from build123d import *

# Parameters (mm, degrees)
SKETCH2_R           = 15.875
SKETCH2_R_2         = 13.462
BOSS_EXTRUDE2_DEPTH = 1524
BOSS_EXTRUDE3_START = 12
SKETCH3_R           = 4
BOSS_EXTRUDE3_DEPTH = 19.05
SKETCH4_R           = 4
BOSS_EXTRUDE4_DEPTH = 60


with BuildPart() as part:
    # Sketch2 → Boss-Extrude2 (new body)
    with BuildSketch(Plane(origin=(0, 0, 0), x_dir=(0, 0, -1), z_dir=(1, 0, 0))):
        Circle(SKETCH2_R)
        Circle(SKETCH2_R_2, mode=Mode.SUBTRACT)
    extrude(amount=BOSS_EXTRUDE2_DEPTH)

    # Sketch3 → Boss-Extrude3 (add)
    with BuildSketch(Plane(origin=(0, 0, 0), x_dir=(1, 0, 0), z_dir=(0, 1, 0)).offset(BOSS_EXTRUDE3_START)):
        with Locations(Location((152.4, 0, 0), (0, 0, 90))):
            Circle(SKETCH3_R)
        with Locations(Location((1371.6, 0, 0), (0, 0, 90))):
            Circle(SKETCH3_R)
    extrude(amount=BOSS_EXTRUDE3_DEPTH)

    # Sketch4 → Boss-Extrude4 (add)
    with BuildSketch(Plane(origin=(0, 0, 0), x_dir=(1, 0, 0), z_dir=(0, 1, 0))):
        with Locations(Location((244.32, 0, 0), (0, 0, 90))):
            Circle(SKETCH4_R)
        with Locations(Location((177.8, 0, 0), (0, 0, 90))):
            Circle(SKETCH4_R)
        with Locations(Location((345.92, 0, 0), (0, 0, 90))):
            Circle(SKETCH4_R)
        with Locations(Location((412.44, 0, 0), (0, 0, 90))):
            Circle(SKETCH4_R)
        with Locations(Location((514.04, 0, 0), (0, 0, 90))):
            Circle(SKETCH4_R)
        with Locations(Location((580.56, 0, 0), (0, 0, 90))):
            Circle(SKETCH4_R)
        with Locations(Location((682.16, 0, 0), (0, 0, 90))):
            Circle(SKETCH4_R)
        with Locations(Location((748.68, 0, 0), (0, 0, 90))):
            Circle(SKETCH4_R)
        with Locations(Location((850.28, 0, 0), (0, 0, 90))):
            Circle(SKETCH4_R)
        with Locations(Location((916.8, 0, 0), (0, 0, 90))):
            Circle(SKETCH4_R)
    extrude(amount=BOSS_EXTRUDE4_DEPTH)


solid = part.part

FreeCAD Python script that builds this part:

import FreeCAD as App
import Part
import Sketcher

V = App.Vector
Q = App.Units.Quantity

doc = App.newDocument("Part")
params = doc.addObject("Spreadsheet::Sheet", "Params")
for row, (alias, value) in enumerate([
    ("sketch1_diameter", "1.25 in"),
    ("sketch1_diameter2", "1.06 in"),
    ("pad1_length", "60 in"),
    ("pad2_length", "0.75 in"),
    ("pad3_length", "60 mm"),
], start=1):
    params.set(f"A{row}", alias)
    params.set(f"B{row}", "=" + value)
    params.setAlias(f"B{row}", alias)

body = doc.addObject("PartDesign::Body", "Body")

sketch1 = body.newObject("Sketcher::SketchObject", "Sketch")
sketch1.AttachmentSupport = (doc.getObject("YZ_Plane"), [""])
sketch1.MapMode = "FlatFace"
sketch1.addGeometry([
    Part.Circle(V(0, 0, 0), V(0, 0, 1), 16),
    Part.Circle(V(0, 0, 0), V(0, 0, 1), 13),
], False)
sketch1.addConstraint([
    Sketcher.Constraint("Coincident", 0, 3, -1, 1),
    Sketcher.Constraint("Coincident", 1, 3, -1, 1),
    Sketcher.Constraint("Diameter", 0, Q("1.25 in")),
    Sketcher.Constraint("Diameter", 1, Q("1.06 in")),
])
sketch1.setExpression("Constraints[2]", "Params.sketch1_diameter")
sketch1.setExpression("Constraints[3]", "Params.sketch1_diameter2")
pad1 = body.newObject("PartDesign::Pad", "Pad")
pad1.Profile = sketch1
pad1.setExpression("Length", "Params.pad1_length")

sketch2 = body.newObject("Sketcher::SketchObject", "Sketch001")
sketch2.AttachmentSupport = (doc.getObject("XZ_Plane"), [""])
sketch2.MapMode = "FlatFace"
sketch2.AttachmentOffset = App.Placement(V(0, 0, -12), App.Rotation())
sketch2.addGeometry([
    Part.Circle(V(152.4, 0, 0), V(0, 0, 1), 4),
    Part.Circle(V(1371.6, 0, 0), V(0, 0, 1), 4),
], False)
sketch2.addConstraint([
    Sketcher.Constraint("Equal", 0, 1),
    Sketcher.Constraint("PointOnObject", 0, 3, -1),
    Sketcher.Constraint("PointOnObject", 1, 3, -1),
    Sketcher.Constraint("DistanceX", -1, 1, 0, 3, Q("6 in")),
    Sketcher.Constraint("DistanceX", -1, 1, 1, 3, Q("54 in")),
    Sketcher.Constraint("Diameter", 0, Q("8 mm")),
])
pad2 = body.newObject("PartDesign::Pad", "Pad001")
pad2.Profile = sketch2
pad2.setExpression("Length", "Params.pad2_length")
pad2.Reversed = True

sketch3 = body.newObject("Sketcher::SketchObject", "Sketch002")
sketch3.AttachmentSupport = (doc.getObject("XZ_Plane"), [""])
sketch3.MapMode = "FlatFace"
sketch3.addGeometry([
    Part.Circle(V(244.3, 0, 0), V(0, 0, 1), 4),
    Part.Circle(V(177.8, 0, 0), V(0, 0, 1), 4),
    Part.Circle(V(345.9, 0, 0), V(0, 0, 1), 4),
    Part.Circle(V(412.4, 0, 0), V(0, 0, 1), 4),
    Part.Circle(V(514, 0, 0), V(0, 0, 1), 4),
    Part.Circle(V(580.6, 0, 0), V(0, 0, 1), 4),
    Part.Circle(V(682.2, 0, 0), V(0, 0, 1), 4),
    Part.Circle(V(748.7, 0, 0), V(0, 0, 1), 4),
    Part.Circle(V(850.3, 0, 0), V(0, 0, 1), 4),
    Part.Circle(V(916.8, 0, 0), V(0, 0, 1), 4),
], False)
sketch3.addConstraint([
    Sketcher.Constraint("Equal", 0, 1),
    Sketcher.Constraint("Equal", 1, 2),
    Sketcher.Constraint("Equal", 2, 3),
    Sketcher.Constraint("Equal", 3, 4),
    Sketcher.Constraint("Equal", 4, 5),
    Sketcher.Constraint("Equal", 5, 6),
    Sketcher.Constraint("Equal", 6, 7),
    Sketcher.Constraint("Equal", 7, 8),
    Sketcher.Constraint("Equal", 8, 9),
    Sketcher.Constraint("PointOnObject", 0, 3, -1),
    Sketcher.Constraint("PointOnObject", 1, 3, -1),
    Sketcher.Constraint("PointOnObject", 2, 3, -1),
    Sketcher.Constraint("PointOnObject", 3, 3, -1),
    Sketcher.Constraint("PointOnObject", 4, 3, -1),
    Sketcher.Constraint("PointOnObject", 5, 3, -1),
    Sketcher.Constraint("PointOnObject", 6, 3, -1),
    Sketcher.Constraint("PointOnObject", 7, 3, -1),
    Sketcher.Constraint("PointOnObject", 8, 3, -1),
    Sketcher.Constraint("PointOnObject", 9, 3, -1),
    Sketcher.Constraint("DistanceX", -1, 1, 1, 3, Q("7 in")),
    Sketcher.Constraint("DistanceX", 0, 3, 2, 3, Q("4 in")),
    Sketcher.Constraint("DistanceX", 3, 3, 4, 3, Q("4 in")),
    Sketcher.Constraint("DistanceX", 5, 3, 6, 3, Q("4 in")),
    Sketcher.Constraint("DistanceX", 7, 3, 8, 3, Q("4 in")),
    Sketcher.Constraint("Diameter", 0, Q("8 mm")),
    Sketcher.Constraint("DistanceX", -1, 1, 0, 3, Q("244.32 mm")),
    Sketcher.Constraint("DistanceX", -1, 1, 3, 3, Q("412.44 mm")),
    Sketcher.Constraint("DistanceX", -1, 1, 5, 3, Q("580.56 mm")),
    Sketcher.Constraint("DistanceX", -1, 1, 7, 3, Q("748.68 mm")),
    Sketcher.Constraint("DistanceX", -1, 1, 9, 3, Q("916.8 mm")),
])
pad3 = body.newObject("PartDesign::Pad", "Pad002")
pad3.Profile = sketch3
pad3.setExpression("Length", "Params.pad3_length")
pad3.Reversed = True

doc.recompute()
